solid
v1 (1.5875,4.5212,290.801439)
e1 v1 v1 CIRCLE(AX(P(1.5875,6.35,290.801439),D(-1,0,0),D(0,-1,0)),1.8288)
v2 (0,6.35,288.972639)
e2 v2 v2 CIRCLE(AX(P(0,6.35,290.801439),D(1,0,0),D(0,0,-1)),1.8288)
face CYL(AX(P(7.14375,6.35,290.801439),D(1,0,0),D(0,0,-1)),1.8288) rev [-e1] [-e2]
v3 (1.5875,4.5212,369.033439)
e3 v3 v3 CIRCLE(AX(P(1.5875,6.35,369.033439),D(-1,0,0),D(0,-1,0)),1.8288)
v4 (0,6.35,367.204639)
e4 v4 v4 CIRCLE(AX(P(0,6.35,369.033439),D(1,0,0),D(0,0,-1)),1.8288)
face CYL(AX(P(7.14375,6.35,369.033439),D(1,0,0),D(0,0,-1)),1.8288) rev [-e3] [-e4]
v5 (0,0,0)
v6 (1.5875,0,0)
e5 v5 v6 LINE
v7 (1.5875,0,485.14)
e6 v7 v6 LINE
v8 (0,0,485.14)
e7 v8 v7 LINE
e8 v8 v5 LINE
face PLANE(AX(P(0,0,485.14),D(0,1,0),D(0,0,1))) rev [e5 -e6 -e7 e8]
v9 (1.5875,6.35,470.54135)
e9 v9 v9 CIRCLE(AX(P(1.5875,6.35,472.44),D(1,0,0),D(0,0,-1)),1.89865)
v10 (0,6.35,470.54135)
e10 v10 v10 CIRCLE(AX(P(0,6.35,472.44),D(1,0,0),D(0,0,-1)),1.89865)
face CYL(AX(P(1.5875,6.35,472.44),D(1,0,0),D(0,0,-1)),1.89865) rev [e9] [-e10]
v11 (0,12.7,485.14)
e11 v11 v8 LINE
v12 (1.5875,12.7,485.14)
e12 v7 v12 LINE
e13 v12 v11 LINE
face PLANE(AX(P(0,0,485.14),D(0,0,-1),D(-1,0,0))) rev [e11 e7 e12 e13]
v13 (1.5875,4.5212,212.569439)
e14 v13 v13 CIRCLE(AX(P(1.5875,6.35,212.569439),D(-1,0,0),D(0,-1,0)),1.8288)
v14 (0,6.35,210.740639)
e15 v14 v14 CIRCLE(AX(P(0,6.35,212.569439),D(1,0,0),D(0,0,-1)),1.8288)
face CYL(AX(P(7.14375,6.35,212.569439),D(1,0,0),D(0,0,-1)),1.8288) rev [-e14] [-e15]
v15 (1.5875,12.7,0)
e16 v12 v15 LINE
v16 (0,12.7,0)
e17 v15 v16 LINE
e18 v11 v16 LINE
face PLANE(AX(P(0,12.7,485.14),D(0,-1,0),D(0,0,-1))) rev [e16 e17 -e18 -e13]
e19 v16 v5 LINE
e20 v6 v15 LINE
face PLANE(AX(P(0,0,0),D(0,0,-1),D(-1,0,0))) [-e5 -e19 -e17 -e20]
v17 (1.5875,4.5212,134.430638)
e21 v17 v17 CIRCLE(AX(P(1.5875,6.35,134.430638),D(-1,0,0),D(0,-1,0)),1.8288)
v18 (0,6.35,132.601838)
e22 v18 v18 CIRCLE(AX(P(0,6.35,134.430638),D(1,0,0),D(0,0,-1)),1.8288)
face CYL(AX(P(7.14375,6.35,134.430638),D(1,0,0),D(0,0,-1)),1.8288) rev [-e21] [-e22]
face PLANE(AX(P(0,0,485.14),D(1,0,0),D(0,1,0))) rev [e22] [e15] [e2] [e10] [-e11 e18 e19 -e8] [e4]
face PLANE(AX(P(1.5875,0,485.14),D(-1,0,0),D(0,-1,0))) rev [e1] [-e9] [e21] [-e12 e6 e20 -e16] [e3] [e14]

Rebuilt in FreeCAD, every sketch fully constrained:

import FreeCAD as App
import Part
import Sketcher
from FreeCAD import Vector
Q = App.Units.Quantity


def add_polygon(sketch, points):
    """Adds a closed chain of lines whose ends are joined by coincident constraints."""
    first, n = sketch.GeometryCount, len(points)
    for a, b in zip(points, points[1:] + points[:1]):
        sketch.addGeometry(Part.LineSegment(App.Vector(*a, 0), App.Vector(*b, 0)), False)
    for i in range(n):
        sketch.addConstraint(Sketcher.Constraint("Coincident", first + i, 2, first + (i + 1) % n, 1))

doc = App.newDocument("Part")
body = doc.addObject("PartDesign::Body", "Body")

sketch1 = body.newObject("Sketcher::SketchObject", "Sketch")
sketch1.AttachmentSupport = (doc.getObject("XY_Plane"), [""])
sketch1.MapMode = "FlatFace"
add_polygon(sketch1, [(0, 12.7), (0, 0), (1.6, 0), (1.6, 12.7)])
sketch1.addConstraint([
    Sketcher.Constraint("Vertical", 0),
    Sketcher.Constraint("Horizontal", 1),
    Sketcher.Constraint("Vertical", 2),
    Sketcher.Constraint("Horizontal", 3),
    Sketcher.Constraint("Coincident", 0, 2, -1, 1),
    Sketcher.Constraint("DistanceY", 0, 2, 0, 1, Q("0.5 in")),
    Sketcher.Constraint("DistanceX", 1, 1, 1, 2, Q("0.0625 in")),
])
pad1 = body.newObject("PartDesign::Pad", "Pad")
pad1.Profile = sketch1
pad1.Length = Q("19.1 in")

sketch2 = body.newObject("Sketcher::SketchObject", "Sketch001")
sketch2.AttachmentSupport = (doc.getObject("YZ_Plane"), [""])
sketch2.MapMode = "FlatFace"
sketch2.AttachmentOffset = App.Placement(Vector(0, 0, 0.0625 * 25.4), App.Rotation())
sketch2.addGeometry(Part.Circle(Vector(6.3, 472.4, 0), Vector(0, 0, 1), 1.9), False)
sketch2.addConstraint([
    Sketcher.Constraint("Diameter", 0, Q("0.1495 in")),
    Sketcher.Constraint("DistanceY", -1, 1, 0, 3, Q("18.6 in")),
    Sketcher.Constraint("DistanceX", -1, 1, 0, 3, Q("0.25 in")),
])
doc.recompute()
hole = body.newObject("PartDesign::Hole", "Hole")
hole.Profile = sketch2
hole.ThreadType = "None"
hole.Diameter = Q("0.1495 in")
hole.DepthType = "ThroughAll"

sketch3 = body.newObject("Sketcher::SketchObject", "Sketch002")
sketch3.AttachmentSupport = (doc.getObject("YZ_Plane"), [""])
sketch3.MapMode = "FlatFace"
sketch3.AttachmentOffset = App.Placement(Vector(0, 0, 0.28125 * 25.4), App.Rotation())
sketch3.addGeometry([
    Part.Circle(Vector(6.3, 369, 0), Vector(0, 0, 1), 1.8),
    Part.Circle(Vector(6.3, 290.8, 0), Vector(0, 0, 1), 1.8),
    Part.Circle(Vector(6.3, 212.6, 0), Vector(0, 0, 1), 1.8),
    Part.Circle(Vector(6.3, 134.4, 0), Vector(0, 0, 1), 1.8),
], False)
sketch3.addConstraint([
    Sketcher.Constraint("Equal", 0, 1),
    Sketcher.Constraint("Equal", 1, 2),
    Sketcher.Constraint("Equal", 2, 3),
    Sketcher.Constraint("Vertical", 0, 3, 1, 3),
    Sketcher.Constraint("Vertical", 1, 3, 2, 3),
    Sketcher.Constraint("Vertical", 2, 3, 3, 3),
    Sketcher.Constraint("Diameter", 0, Q("0.144 in")),
    Sketcher.Constraint("DistanceX", -1, 1, 0, 3, Q("0.25 in")),
    Sketcher.Constraint("DistanceY", 1, 3, 0, 3, Q("3.08 in")),
    Sketcher.Constraint("DistanceY", 2, 3, 1, 3, Q("3.08 in")),
    Sketcher.Constraint("DistanceY", 3, 3, 2, 3, Q("78.138801 mm")),
    Sketcher.Constraint("DistanceY", -1, 1, 0, 3, Q("369.033439 mm")),
])
doc.recompute()
hole2 = body.newObject("PartDesign::Hole", "Hole001")
hole2.Profile = sketch3
hole2.ThreadType = "None"
hole2.Diameter = Q("0.144 in")
hole2.DepthType = "ThroughAll"

doc.recompute()
